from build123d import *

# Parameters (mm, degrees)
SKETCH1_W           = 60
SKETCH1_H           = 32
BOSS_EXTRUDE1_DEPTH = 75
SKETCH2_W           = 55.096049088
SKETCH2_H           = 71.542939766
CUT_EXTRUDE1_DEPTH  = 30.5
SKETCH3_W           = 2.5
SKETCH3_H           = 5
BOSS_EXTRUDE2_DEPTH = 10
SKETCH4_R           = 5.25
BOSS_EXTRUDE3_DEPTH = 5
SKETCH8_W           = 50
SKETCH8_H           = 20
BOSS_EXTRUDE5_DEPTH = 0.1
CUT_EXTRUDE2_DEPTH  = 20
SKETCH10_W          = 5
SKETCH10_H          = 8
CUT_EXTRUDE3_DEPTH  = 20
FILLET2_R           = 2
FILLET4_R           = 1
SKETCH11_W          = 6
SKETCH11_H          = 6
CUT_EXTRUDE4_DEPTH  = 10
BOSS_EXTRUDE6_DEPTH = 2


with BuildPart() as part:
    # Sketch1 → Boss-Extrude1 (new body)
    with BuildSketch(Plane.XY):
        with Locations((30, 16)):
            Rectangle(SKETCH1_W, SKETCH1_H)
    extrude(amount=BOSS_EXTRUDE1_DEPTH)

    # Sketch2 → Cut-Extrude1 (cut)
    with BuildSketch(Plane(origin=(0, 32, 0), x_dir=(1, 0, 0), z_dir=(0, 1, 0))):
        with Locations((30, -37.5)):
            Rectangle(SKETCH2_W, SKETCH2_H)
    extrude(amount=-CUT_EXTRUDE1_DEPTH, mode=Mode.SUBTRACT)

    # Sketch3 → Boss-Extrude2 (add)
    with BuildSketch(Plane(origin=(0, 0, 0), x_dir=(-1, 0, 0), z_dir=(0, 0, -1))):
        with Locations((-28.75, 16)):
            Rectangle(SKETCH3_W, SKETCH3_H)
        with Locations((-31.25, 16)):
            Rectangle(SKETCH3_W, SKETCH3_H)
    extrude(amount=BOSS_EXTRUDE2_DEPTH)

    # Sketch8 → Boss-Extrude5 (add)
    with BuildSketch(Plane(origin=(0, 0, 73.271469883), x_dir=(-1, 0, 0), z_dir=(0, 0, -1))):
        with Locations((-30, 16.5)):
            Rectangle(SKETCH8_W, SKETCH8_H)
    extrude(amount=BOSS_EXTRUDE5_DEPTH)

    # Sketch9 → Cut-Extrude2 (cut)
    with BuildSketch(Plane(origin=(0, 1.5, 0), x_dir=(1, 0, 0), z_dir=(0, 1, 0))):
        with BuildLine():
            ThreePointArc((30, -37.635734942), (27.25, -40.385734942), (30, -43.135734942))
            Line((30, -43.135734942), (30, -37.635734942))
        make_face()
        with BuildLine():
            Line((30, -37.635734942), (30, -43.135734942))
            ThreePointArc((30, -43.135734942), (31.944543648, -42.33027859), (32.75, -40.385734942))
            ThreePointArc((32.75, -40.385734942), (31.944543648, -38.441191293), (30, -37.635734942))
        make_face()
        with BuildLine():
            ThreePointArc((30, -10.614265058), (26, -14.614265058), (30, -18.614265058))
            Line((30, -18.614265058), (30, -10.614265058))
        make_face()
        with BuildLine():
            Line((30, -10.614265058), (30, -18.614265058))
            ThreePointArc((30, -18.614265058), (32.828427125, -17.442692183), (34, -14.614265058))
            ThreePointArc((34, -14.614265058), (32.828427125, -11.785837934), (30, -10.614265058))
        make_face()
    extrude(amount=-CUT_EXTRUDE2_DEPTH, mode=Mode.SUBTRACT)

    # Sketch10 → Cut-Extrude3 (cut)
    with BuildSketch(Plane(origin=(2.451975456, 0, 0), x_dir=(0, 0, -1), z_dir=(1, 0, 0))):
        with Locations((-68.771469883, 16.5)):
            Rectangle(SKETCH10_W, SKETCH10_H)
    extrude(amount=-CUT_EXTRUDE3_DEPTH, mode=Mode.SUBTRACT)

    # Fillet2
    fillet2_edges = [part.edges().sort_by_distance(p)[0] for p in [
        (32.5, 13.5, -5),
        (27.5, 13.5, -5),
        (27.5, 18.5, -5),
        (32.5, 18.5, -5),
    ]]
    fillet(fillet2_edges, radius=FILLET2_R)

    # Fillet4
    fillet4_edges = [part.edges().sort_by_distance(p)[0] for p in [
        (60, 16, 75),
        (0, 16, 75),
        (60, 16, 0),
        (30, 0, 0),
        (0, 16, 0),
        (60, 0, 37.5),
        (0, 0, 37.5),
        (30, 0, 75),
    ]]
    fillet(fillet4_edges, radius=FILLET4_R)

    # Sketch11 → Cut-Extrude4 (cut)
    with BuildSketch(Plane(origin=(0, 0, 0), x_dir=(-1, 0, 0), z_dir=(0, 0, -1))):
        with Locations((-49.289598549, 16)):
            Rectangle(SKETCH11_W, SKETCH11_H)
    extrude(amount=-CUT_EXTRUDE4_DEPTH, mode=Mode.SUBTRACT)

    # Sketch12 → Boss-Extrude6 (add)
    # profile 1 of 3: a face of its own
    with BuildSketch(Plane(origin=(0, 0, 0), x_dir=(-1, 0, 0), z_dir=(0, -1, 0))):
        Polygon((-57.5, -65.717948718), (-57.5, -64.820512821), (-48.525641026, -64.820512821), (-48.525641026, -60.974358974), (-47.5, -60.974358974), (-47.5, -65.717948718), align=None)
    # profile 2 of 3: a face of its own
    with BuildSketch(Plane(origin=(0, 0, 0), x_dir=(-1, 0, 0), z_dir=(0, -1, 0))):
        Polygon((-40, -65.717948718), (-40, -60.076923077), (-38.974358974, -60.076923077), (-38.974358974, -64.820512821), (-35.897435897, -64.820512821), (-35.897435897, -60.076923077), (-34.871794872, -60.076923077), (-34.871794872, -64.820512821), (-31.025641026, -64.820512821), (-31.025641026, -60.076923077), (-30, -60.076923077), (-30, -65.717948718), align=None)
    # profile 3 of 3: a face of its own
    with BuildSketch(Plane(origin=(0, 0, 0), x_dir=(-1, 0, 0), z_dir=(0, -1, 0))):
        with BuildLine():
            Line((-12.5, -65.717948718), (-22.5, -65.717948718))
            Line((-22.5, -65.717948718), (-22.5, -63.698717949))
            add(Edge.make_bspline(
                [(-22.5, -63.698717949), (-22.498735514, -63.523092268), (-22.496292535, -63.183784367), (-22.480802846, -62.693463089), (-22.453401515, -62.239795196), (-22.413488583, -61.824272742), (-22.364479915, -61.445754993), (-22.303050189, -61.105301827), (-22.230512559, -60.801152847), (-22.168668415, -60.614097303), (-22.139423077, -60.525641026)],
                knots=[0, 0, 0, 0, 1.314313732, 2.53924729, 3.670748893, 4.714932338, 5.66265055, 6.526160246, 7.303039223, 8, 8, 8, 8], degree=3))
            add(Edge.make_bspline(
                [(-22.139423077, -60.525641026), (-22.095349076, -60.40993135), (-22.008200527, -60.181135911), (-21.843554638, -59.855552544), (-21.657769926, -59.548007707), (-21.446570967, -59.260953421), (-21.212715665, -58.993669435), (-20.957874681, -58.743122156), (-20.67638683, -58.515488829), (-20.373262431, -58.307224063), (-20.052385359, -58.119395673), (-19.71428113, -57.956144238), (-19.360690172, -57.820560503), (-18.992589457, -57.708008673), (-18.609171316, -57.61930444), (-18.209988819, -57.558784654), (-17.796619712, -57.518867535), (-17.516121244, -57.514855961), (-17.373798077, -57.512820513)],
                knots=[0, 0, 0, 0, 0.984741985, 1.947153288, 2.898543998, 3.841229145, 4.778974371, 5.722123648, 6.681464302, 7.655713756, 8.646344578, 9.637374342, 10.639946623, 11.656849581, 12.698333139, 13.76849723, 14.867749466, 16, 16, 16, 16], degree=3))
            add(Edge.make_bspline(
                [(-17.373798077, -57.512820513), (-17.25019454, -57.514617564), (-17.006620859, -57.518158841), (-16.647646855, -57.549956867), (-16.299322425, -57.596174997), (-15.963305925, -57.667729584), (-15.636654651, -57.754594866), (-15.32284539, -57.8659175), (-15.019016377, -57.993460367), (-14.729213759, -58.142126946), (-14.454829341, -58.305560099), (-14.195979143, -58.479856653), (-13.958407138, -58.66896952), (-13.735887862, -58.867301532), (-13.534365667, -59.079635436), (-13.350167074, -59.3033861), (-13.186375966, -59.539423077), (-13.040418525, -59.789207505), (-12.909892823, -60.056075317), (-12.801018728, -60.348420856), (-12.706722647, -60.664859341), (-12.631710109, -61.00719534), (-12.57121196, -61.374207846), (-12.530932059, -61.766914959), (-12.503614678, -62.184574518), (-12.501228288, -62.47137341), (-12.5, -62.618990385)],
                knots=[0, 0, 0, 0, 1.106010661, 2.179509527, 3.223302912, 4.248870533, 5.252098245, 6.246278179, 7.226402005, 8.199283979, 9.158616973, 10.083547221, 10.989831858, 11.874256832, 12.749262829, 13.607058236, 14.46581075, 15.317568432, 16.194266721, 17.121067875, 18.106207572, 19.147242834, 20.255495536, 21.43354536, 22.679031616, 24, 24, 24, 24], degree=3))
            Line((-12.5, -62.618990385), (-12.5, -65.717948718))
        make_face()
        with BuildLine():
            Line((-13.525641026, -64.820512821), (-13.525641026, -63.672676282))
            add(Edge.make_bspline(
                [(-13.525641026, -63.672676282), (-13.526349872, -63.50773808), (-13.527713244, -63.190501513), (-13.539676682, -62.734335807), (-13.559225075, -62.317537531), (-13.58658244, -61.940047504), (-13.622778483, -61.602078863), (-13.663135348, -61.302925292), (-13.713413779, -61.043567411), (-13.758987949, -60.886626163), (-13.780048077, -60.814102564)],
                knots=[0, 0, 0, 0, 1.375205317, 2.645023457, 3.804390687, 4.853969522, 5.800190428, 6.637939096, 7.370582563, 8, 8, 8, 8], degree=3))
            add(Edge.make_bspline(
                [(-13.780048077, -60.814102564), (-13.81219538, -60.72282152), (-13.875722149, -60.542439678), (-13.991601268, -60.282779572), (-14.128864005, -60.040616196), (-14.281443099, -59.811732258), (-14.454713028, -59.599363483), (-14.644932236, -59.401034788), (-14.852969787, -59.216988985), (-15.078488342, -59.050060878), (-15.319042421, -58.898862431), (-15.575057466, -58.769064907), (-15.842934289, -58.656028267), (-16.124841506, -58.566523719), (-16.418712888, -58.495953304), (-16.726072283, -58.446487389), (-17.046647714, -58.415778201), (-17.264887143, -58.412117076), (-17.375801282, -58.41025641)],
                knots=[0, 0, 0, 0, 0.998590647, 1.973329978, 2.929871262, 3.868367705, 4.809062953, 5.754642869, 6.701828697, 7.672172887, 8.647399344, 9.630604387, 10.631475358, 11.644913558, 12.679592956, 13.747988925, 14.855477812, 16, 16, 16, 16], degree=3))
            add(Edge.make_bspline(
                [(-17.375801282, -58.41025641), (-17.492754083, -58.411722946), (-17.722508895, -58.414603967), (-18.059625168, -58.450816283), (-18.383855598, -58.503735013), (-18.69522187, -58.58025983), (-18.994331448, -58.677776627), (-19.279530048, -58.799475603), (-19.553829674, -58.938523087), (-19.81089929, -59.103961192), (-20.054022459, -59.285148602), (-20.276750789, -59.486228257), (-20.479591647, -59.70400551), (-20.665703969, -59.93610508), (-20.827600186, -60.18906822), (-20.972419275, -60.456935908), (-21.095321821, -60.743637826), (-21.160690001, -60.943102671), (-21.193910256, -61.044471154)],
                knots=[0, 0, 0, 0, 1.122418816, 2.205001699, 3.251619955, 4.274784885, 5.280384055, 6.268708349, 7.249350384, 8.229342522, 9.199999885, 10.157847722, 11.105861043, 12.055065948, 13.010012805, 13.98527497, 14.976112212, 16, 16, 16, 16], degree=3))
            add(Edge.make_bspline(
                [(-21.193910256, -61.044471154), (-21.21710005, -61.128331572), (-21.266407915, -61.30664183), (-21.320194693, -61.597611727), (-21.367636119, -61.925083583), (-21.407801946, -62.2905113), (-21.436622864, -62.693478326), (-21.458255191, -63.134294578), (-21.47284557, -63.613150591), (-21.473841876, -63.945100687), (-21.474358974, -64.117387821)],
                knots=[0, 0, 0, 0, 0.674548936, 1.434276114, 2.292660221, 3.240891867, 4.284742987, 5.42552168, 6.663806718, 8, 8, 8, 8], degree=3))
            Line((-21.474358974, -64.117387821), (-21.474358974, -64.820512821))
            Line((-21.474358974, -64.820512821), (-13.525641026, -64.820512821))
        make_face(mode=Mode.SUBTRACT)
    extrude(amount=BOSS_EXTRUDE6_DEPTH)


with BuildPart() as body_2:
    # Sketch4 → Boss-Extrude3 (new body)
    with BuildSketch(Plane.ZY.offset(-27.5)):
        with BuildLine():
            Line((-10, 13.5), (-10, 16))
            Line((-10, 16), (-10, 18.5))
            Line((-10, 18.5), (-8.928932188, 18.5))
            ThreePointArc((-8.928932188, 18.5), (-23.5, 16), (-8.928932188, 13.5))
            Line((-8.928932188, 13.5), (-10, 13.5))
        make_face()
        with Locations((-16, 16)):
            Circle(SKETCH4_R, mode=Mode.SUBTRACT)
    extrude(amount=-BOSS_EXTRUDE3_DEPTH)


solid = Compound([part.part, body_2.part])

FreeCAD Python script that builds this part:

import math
import FreeCAD as App
import Part
import Sketcher
from FreeCAD import Vector


def edges_at(feature, points):
    """Names of the edges that pass closest to the given points."""
    edges = feature.Shape.Edges
    near = lambda p: min(range(len(edges)), key=lambda i: edges[i].distToShape(Part.Vertex(*p))[0])
    return sorted({f"Edge{near(p) + 1}" for p in points})


def add_polygon(sketch, points):
    """Adds a closed chain of lines whose ends are joined by coincident constraints."""
    first, n = sketch.GeometryCount, len(points)
    for a, b in zip(points, points[1:] + points[:1]):
        sketch.addGeometry(Part.LineSegment(App.Vector(*a, 0), App.Vector(*b, 0)), False)
    for i in range(n):
        sketch.addConstraint(Sketcher.Constraint("Coincident", first + i, 2, first + (i + 1) % n, 1))

doc = App.newDocument("Part")
body = doc.addObject("PartDesign::Body", "Body")

sketch1 = body.newObject("Sketcher::SketchObject", "Sketch")
sketch1.AttachmentSupport = (doc.getObject("XY_Plane"), [""])
sketch1.MapMode = "FlatFace"
add_polygon(sketch1, [(0, 32), (0, 0), (60, 0), (60, 32)])
sketch1.addConstraint([
    Sketcher.Constraint("Vertical", 0),
    Sketcher.Constraint("Horizontal", 1),
    Sketcher.Constraint("Vertical", 2),
    Sketcher.Constraint("Horizontal", 3),
    Sketcher.Constraint("Coincident", 0, 2, -1, 1),
    Sketcher.Constraint("DistanceX", 1, 1, 1, 2, 60.0),
    Sketcher.Constraint("DistanceY", 0, 2, 0, 1, 32.0),
])
pad1 = body.newObject("PartDesign::Pad", "Pad")
pad1.Profile = sketch1
pad1.Length = 75

sketch2 = body.newObject("Sketcher::SketchObject", "Sketch001")
sketch2.AttachmentSupport = (doc.getObject("XZ_Plane"), [""])
sketch2.MapMode = "FlatFace"
sketch2.AttachmentOffset = App.Placement(Vector(0, 0, -32), App.Rotation())
add_polygon(sketch2, [(2, 2), (2, 73), (58, 73), (58, 2)])
sketch2.addConstraint([
    Sketcher.Constraint("Vertical", 0),
    Sketcher.Constraint("Horizontal", 1),
    Sketcher.Constraint("Vertical", 2),
    Sketcher.Constraint("Horizontal", 3),
    Sketcher.Constraint("DistanceX", 1, 1, 1, 2, 55.096049),
    Sketcher.Constraint("DistanceY", 0, 1, 0, 2, 71.54294),
    Sketcher.Constraint("DistanceY", -1, 1, 0, 2, 73.27147),
    Sketcher.Constraint("DistanceX", -1, 1, 0, 2, 2.451975),
])
pocket1 = body.newObject("PartDesign::Pocket", "Pocket")
pocket1.Profile = sketch2
pocket1.Length = 30.5
pocket1.Reversed = True

sketch3 = body.newObject("Sketcher::SketchObject", "Sketch002")
sketch3.AttachmentSupport = (doc.getObject("XY_Plane"), [""])
sketch3.MapMode = "FlatFace"
add_polygon(sketch3, [(28, 14), (28, 18), (32, 18), (32, 14)])
sketch3.addConstraint([
    Sketcher.Constraint("Vertical", 0),
    Sketcher.Constraint("Horizontal", 1),
    Sketcher.Constraint("Vertical", 2),
    Sketcher.Constraint("Horizontal", 3),
    Sketcher.Constraint("Equal", 3, 0),
    Sketcher.Constraint("DistanceX", 1, 1, 1, 2, 5.0),
    Sketcher.Constraint("DistanceX", -1, 1, 0, 2, 27.5),
    Sketcher.Constraint("DistanceY", -1, 1, 0, 2, 18.5),
])
pad2 = body.newObject("PartDesign::Pad", "Pad001")
pad2.Profile = sketch3
pad2.Length = 10
pad2.Reversed = True

sketch4 = body.newObject("Sketcher::SketchObject", "Sketch003")
sketch4.AttachmentSupport = (doc.getObject("XY_Plane"), [""])
sketch4.MapMode = "FlatFace"
sketch4.AttachmentOffset = App.Placement(Vector(0, 0, 73.27147), App.Rotation())
add_polygon(sketch4, [(55, 26), (55, 6), (5, 6), (5, 26)])
sketch4.addConstraint([
    Sketcher.Constraint("Vertical", 0),
    Sketcher.Constraint("Horizontal", 1),
    Sketcher.Constraint("Vertical", 2),
    Sketcher.Constraint("Horizontal", 3),
    Sketcher.Constraint("DistanceX", 1, 2, 1, 1, 50.0),
    Sketcher.Constraint("DistanceY", 0, 2, 0, 1, 20.0),
    Sketcher.Constraint("DistanceX", -1, 1, 0, 2, 55.0),
    Sketcher.Constraint("DistanceY", -1, 1, 0, 2, 6.5),
])
pad3 = body.newObject("PartDesign::Pad", "Pad002")
pad3.Profile = sketch4
pad3.Length = 0.1
pad3.Reversed = True

sketch5 = body.newObject("Sketcher::SketchObject", "Sketch004")
sketch5.AttachmentSupport = (doc.getObject("XZ_Plane"), [""])
sketch5.MapMode = "FlatFace"
sketch5.AttachmentOffset = App.Placement(Vector(0, 0, -1.5), App.Rotation())
sketch5.addGeometry([
    Part.ArcOfCircle(Part.Circle(Vector(30, 40.4, 0), Vector(0, 0, 1), 2.8), math.radians(90), math.radians(270)),
    Part.ArcOfCircle(Part.Circle(Vector(30, 40.4, 0), Vector(0, 0, 1), 2.8), math.radians(0), math.radians(90)),
    Part.ArcOfCircle(Part.Circle(Vector(30, 40.4, 0), Vector(0, 0, 1), 2.7), math.radians(-90), math.radians(0)),
    Part.ArcOfCircle(Part.Circle(Vector(30, 14.6, 0), Vector(0, 0, 1), 4), math.radians(90), math.radians(270)),
    Part.ArcOfCircle(Part.Circle(Vector(30, 14.6, 0), Vector(0, 0, 1), 4), math.radians(0), math.radians(90)),
    Part.ArcOfCircle(Part.Circle(Vector(30, 14.6, 0), Vector(0, 0, 1), 4), math.radians(-90), math.radians(0)),
], False)
sketch5.addConstraint([
    Sketcher.Constraint("Tangent", 0, 1, 1, 2),
    Sketcher.Constraint("Tangent", 1, 1, 2, 2),
    Sketcher.Constraint("Tangent", 2, 1, 0, 2),
    Sketcher.Constraint("Tangent", 3, 1, 4, 2),
    Sketcher.Constraint("Tangent", 4, 1, 5, 2),
    Sketcher.Constraint("Tangent", 5, 1, 3, 2),
    Sketcher.Constraint("Horizontal", 2, 3, 1, 1),
    Sketcher.Constraint("Horizontal", 5, 3, 4, 1),
    Sketcher.Constraint("Vertical", 2, 3, 3, 3),
    Sketcher.Constraint("Vertical", 5, 3, 0, 1),
    Sketcher.Constraint("Vertical", 0, 1, 2, 1),
    Sketcher.Constraint("Vertical", 2, 1, 3, 1),
    Sketcher.Constraint("Vertical", 3, 1, 5, 1),
    Sketcher.Constraint("Radius", 3, 4.0),
    Sketcher.Constraint("Radius", 0, 2.75),
    Sketcher.Constraint("DistanceX", -1, 1, 0, 3, 30.0),
    Sketcher.Constraint("DistanceY", 3, 3, 1, 3, 25.77147),
    Sketcher.Constraint("DistanceY", -1, 1, 0, 3, 40.385735),
])
pocket2 = body.newObject("PartDesign::Pocket", "Pocket001")
pocket2.Profile = sketch5
pocket2.Length = 20
pocket2.Reversed = True

sketch6 = body.newObject("Sketcher::SketchObject", "Sketch005")
sketch6.AttachmentSupport = (doc.getObject("YZ_Plane"), [""])
sketch6.MapMode = "FlatFace"
sketch6.AttachmentOffset = App.Placement(Vector(0, 0, 2.451975), App.Rotation())
add_polygon(sketch6, [(20, 71), (12, 71), (12, 66), (20, 66)])
sketch6.addConstraint([
    Sketcher.Constraint("Horizontal", 0),
    Sketcher.Constraint("Vertical", 1),
    Sketcher.Constraint("Horizontal", 2),
    Sketcher.Constraint("Vertical", 3),
    Sketcher.Constraint("DistanceX", 0, 2, 0, 1, 8.0),
    Sketcher.Constraint("DistanceY", 1, 2, 1, 1, 5.0),
    Sketcher.Constraint("DistanceX", -1, 1, 0, 2, 12.5),
    Sketcher.Constraint("DistanceY", -1, 1, 0, 2, 71.27147),
])
pocket3 = body.newObject("PartDesign::Pocket", "Pocket002")
pocket3.Profile = sketch6
pocket3.Length = 20
doc.recompute()

fillet = body.newObject("PartDesign::Fillet", "Fillet")
fillet.Base = (pocket3, edges_at(pocket3, [
    (32.5, 13.5, -5),
    (27.5, 13.5, -5),
    (27.5, 18.5, -5),
    (32.5, 18.5, -5),
]))
fillet.Radius = 2
doc.recompute()

fillet2 = body.newObject("PartDesign::Fillet", "Fillet001")
fillet2.Base = (fillet, edges_at(fillet, [
    (60, 16, 75),
    (0, 16, 75),
    (60, 16, 0),
    (30, 0, 0),
    (0, 16, 0),
    (60, 0, 37.5),
    (0, 0, 37.5),
    (30, 0, 75),
]))
fillet2.Radius = 1

sketch7 = body.newObject("Sketcher::SketchObject", "Sketch006")
sketch7.AttachmentSupport = (doc.getObject("XY_Plane"), [""])
sketch7.MapMode = "FlatFace"
add_polygon(sketch7, [(52, 19), (52, 13), (46, 13), (46, 19)])
sketch7.addConstraint([
    Sketcher.Constraint("Vertical", 0),
    Sketcher.Constraint("Horizontal", 1),
    Sketcher.Constraint("Vertical", 2),
    Sketcher.Constraint("Horizontal", 3),
    Sketcher.Constraint("Equal", 3, 0),
    Sketcher.Constraint("DistanceX", 1, 2, 1, 1, 6.0),
    Sketcher.Constraint("DistanceY", -1, 1, 0, 2, 13.0),
    Sketcher.Constraint("DistanceX", -1, 1, 0, 2, 52.289599),
])
pocket4 = body.newObject("PartDesign::Pocket", "Pocket003")
pocket4.Profile = sketch7
pocket4.Length = 10
pocket4.Reversed = True

sketch8 = body.newObject("Sketcher::SketchObject", "Sketch007")
sketch8.AttachmentSupport = (doc.getObject("XZ_Plane"), [""])
sketch8.MapMode = "FlatFace"
add_polygon(sketch8, [(57.5, 64.820513), (57.5, 65.717949), (47.5, 65.717949), (47.5, 60.974359), (48.525641, 60.974359), (48.525641, 64.820513)])
add_polygon(sketch8, [(40, 60.076923), (40, 65.717949), (30, 65.717949), (30, 60.076923), (31.025641, 60.076923), (31.025641, 64.820513), (34.871795, 64.820513), (34.871795, 60.076923), (35.897436, 60.076923), (35.897436, 64.820513), (38.974359, 64.820513), (38.974359, 60.076923)])
sketch8.addGeometry(Part.LineSegment(Vector(22.5, 65.717949, 0), Vector(12.5, 65.717949, 0)), False)
sketch8.addGeometry(Part.LineSegment(Vector(12.5, 65.717949, 0), Vector(12.5, 62.61899, 0)), False)
sketch8.addGeometry(Part.BSplineCurve([Vector(17.373798, 57.512821, 0), Vector(17.250195, 57.514618, 0), Vector(17.006621, 57.518159, 0), Vector(16.647647, 57.549957, 0), Vector(16.299322, 57.596175, 0), Vector(15.963306, 57.66773, 0), Vector(15.636655, 57.754595, 0), Vector(15.322845, 57.865918, 0), Vector(15.019016, 57.99346, 0), Vector(14.729214, 58.142127, 0), Vector(14.454829, 58.30556, 0), Vector(14.195979, 58.479857, 0), Vector(13.958407, 58.66897, 0), Vector(13.735888, 58.867302, 0), Vector(13.534366, 59.079635, 0), Vector(13.350167, 59.303386, 0), Vector(13.186376, 59.539423, 0), Vector(13.040419, 59.789208, 0), Vector(12.909893, 60.056075, 0), Vector(12.801019, 60.348421, 0), Vector(12.706723, 60.664859, 0), Vector(12.63171, 61.007195, 0), Vector(12.571212, 61.374208, 0), Vector(12.530932, 61.766915, 0), Vector(12.503615, 62.184575, 0), Vector(12.501228, 62.471373, 0), Vector(12.5, 62.61899, 0)], [4, 1, 1, 1, 1, 1, 1, 1, 1, 1, 1, 1, 1, 1, 1, 1, 1, 1, 1, 1, 1, 1, 1, 1, 4], [0, 1.106010661, 2.179509527, 3.223302912, 4.248870533, 5.252098245, 6.246278179, 7.226402005, 8.199283979, 9.158616973, 10.083547221, 10.989831858, 11.874256832, 12.749262829, 13.607058236, 14.46581075, 15.317568432, 16.194266721, 17.121067875, 18.106207572, 19.147242834, 20.255495536, 21.43354536, 22.679031616, 24], False, 3, [1, 1, 1, 1, 1, 1, 1, 1, 1, 1, 1, 1, 1, 1, 1, 1, 1, 1, 1, 1, 1, 1, 1, 1, 1, 1, 1], False), False)
sketch8.addGeometry(Part.BSplineCurve([Vector(22.139423, 60.525641, 0), Vector(22.095349, 60.409931, 0), Vector(22.008201, 60.181136, 0), Vector(21.843555, 59.855553, 0), Vector(21.65777, 59.548008, 0), Vector(21.446571, 59.260953, 0), Vector(21.212716, 58.993669, 0), Vector(20.957875, 58.743122, 0), Vector(20.676387, 58.515489, 0), Vector(20.373262, 58.307224, 0), Vector(20.052385, 58.119396, 0), Vector(19.714281, 57.956144, 0), Vector(19.36069, 57.820561, 0), Vector(18.992589, 57.708009, 0), Vector(18.609171, 57.619304, 0), Vector(18.209989, 57.558785, 0), Vector(17.79662, 57.518868, 0), Vector(17.516121, 57.514856, 0), Vector(17.373798, 57.512821, 0)], [4, 1, 1, 1, 1, 1, 1, 1, 1, 1, 1, 1, 1, 1, 1, 1, 4], [0, 0.984741985, 1.947153288, 2.898543998, 3.841229145, 4.778974371, 5.722123648, 6.681464302, 7.655713756, 8.646344578, 9.637374342, 10.639946623, 11.656849581, 12.698333139, 13.76849723, 14.867749466, 16], False, 3, [1, 1, 1, 1, 1, 1, 1, 1, 1, 1, 1, 1, 1, 1, 1, 1, 1, 1, 1], False), False)
sketch8.addGeometry(Part.BSplineCurve([Vector(22.5, 63.698718, 0), Vector(22.498736, 63.523092, 0), Vector(22.496293, 63.183784, 0), Vector(22.480803, 62.693463, 0), Vector(22.453402, 62.239795, 0), Vector(22.413489, 61.824273, 0), Vector(22.36448, 61.445755, 0), Vector(22.30305, 61.105302, 0), Vector(22.230513, 60.801153, 0), Vector(22.168668, 60.614097, 0), Vector(22.139423, 60.525641, 0)], [4, 1, 1, 1, 1, 1, 1, 1, 4], [0, 1.314313732, 2.53924729, 3.670748893, 4.714932338, 5.66265055, 6.526160246, 7.303039223, 8], False, 3, [1, 1, 1, 1, 1, 1, 1, 1, 1, 1, 1], False), False)
sketch8.addGeometry(Part.LineSegment(Vector(22.5, 63.698718, 0), Vector(22.5, 65.717949, 0)), False)
sketch8.addGeometry(Part.LineSegment(Vector(13.525641, 64.820513, 0), Vector(21.474359, 64.820513, 0)), False)
sketch8.addGeometry(Part.LineSegment(Vector(21.474359, 64.820513, 0), Vector(21.474359, 64.117388, 0)), False)
sketch8.addGeometry(Part.BSplineCurve([Vector(21.19391, 61.044471, 0), Vector(21.2171, 61.128332, 0), Vector(21.266408, 61.306642, 0), Vector(21.320195, 61.597612, 0), Vector(21.367636, 61.925084, 0), Vector(21.407802, 62.290511, 0), Vector(21.436623, 62.693478, 0), Vector(21.458255, 63.134295, 0), Vector(21.472846, 63.613151, 0), Vector(21.473842, 63.945101, 0), Vector(21.474359, 64.117388, 0)], [4, 1, 1, 1, 1, 1, 1, 1, 4], [0, 0.674548936, 1.434276114, 2.292660221, 3.240891867, 4.284742987, 5.42552168, 6.663806718, 8], False, 3, [1, 1, 1, 1, 1, 1, 1, 1, 1, 1, 1], False), False)
sketch8.addGeometry(Part.BSplineCurve([Vector(17.375801, 58.410256, 0), Vector(17.492754, 58.411723, 0), Vector(17.722509, 58.414604, 0), Vector(18.059625, 58.450816, 0), Vector(18.383856, 58.503735, 0), Vector(18.695222, 58.58026, 0), Vector(18.994331, 58.677777, 0), Vector(19.27953, 58.799476, 0), Vector(19.55383, 58.938523, 0), Vector(19.810899, 59.103961, 0), Vector(20.054022, 59.285149, 0), Vector(20.276751, 59.486228, 0), Vector(20.479592, 59.704006, 0), Vector(20.665704, 59.936105, 0), Vector(20.8276, 60.189068, 0), Vector(20.972419, 60.456936, 0), Vector(21.095322, 60.743638, 0), Vector(21.16069, 60.943103, 0), Vector(21.19391, 61.044471, 0)], [4, 1, 1, 1, 1, 1, 1, 1, 1, 1, 1, 1, 1, 1, 1, 1, 4], [0, 1.122418816, 2.205001699, 3.251619955, 4.274784885, 5.280384055, 6.268708349, 7.249350384, 8.229342522, 9.199999885, 10.157847722, 11.105861043, 12.055065948, 13.010012805, 13.98527497, 14.976112212, 16], False, 3, [1, 1, 1, 1, 1, 1, 1, 1, 1, 1, 1, 1, 1, 1, 1, 1, 1, 1, 1], False), False)
sketch8.addGeometry(Part.BSplineCurve([Vector(13.780048, 60.814103, 0), Vector(13.812195, 60.722822, 0), Vector(13.875722, 60.54244, 0), Vector(13.991601, 60.28278, 0), Vector(14.128864, 60.040616, 0), Vector(14.281443, 59.811732, 0), Vector(14.454713, 59.599363, 0), Vector(14.644932, 59.401035, 0), Vector(14.85297, 59.216989, 0), Vector(15.078488, 59.050061, 0), Vector(15.319042, 58.898862, 0), Vector(15.575057, 58.769065, 0), Vector(15.842934, 58.656028, 0), Vector(16.124842, 58.566524, 0), Vector(16.418713, 58.495953, 0), Vector(16.726072, 58.446487, 0), Vector(17.046648, 58.415778, 0), Vector(17.264887, 58.412117, 0), Vector(17.375801, 58.410256, 0)], [4, 1, 1, 1, 1, 1, 1, 1, 1, 1, 1, 1, 1, 1, 1, 1, 4], [0, 0.998590647, 1.973329978, 2.929871262, 3.868367705, 4.809062953, 5.754642869, 6.701828697, 7.672172887, 8.647399344, 9.630604387, 10.631475358, 11.644913558, 12.679592956, 13.747988925, 14.855477812, 16], False, 3, [1, 1, 1, 1, 1, 1, 1, 1, 1, 1, 1, 1, 1, 1, 1, 1, 1, 1, 1], False), False)
sketch8.addGeometry(Part.BSplineCurve([Vector(13.525641, 63.672676, 0), Vector(13.52635, 63.507738, 0), Vector(13.527713, 63.190502, 0), Vector(13.539677, 62.734336, 0), Vector(13.559225, 62.317538, 0), Vector(13.586582, 61.940048, 0), Vector(13.622778, 61.602079, 0), Vector(13.663135, 61.302925, 0), Vector(13.713414, 61.043567, 0), Vector(13.758988, 60.886626, 0), Vector(13.780048, 60.814103, 0)], [4, 1, 1, 1, 1, 1, 1, 1, 4], [0, 1.375205317, 2.645023457, 3.804390687, 4.853969522, 5.800190428, 6.637939096, 7.370582563, 8], False, 3, [1, 1, 1, 1, 1, 1, 1, 1, 1, 1, 1], False), False)
sketch8.addGeometry(Part.LineSegment(Vector(13.525641, 63.672676, 0), Vector(13.525641, 64.820513, 0)), False)
sketch8.addConstraint([
    Sketcher.Constraint("Block", 20),
    Sketcher.Constraint("Block", 21),
    Sketcher.Constraint("Block", 22),
    Sketcher.Constraint("Block", 26),
    Sketcher.Constraint("Block", 27),
    Sketcher.Constraint("Block", 28),
    Sketcher.Constraint("Block", 29),
    Sketcher.Constraint("Coincident", 18, 2, 19, 1),
    Sketcher.Constraint("Coincident", 19, 2, 20, 2),
    Sketcher.Constraint("Coincident", 22, 1, 23, 1),
    Sketcher.Constraint("Coincident", 23, 2, 18, 1),
    Sketcher.Constraint("Coincident", 24, 2, 25, 1),
    Sketcher.Constraint("Coincident", 25, 2, 26, 2),
    Sketcher.Constraint("Coincident", 29, 1, 30, 1),
    Sketcher.Constraint("Coincident", 30, 2, 24, 1),
    Sketcher.Constraint("Vertical", 0),
    Sketcher.Constraint("Horizontal", 1),
    Sketcher.Constraint("Vertical", 2),
    Sketcher.Constraint("Horizontal", 3),
    Sketcher.Constraint("Vertical", 4),
    Sketcher.Constraint("Horizontal", 5),
    Sketcher.Constraint("Vertical", 6),
    Sketcher.Constraint("Horizontal", 7),
    Sketcher.Constraint("Vertical", 8),
    Sketcher.Constraint("Horizontal", 9),
    Sketcher.Constraint("Vertical", 10),
    Sketcher.Constraint("Horizontal", 11),
    Sketcher.Constraint("Vertical", 12),
    Sketcher.Constraint("Horizontal", 13),
    Sketcher.Constraint("Vertical", 14),
    Sketcher.Constraint("Horizontal", 15),
    Sketcher.Constraint("Vertical", 16),
    Sketcher.Constraint("Horizontal", 17),
    Sketcher.Constraint("Horizontal", 18),
    Sketcher.Constraint("Vertical", 19),
    Sketcher.Constraint("Vertical", 23),
    Sketcher.Constraint("Horizontal", 24),
    Sketcher.Constraint("Vertical", 25),
    Sketcher.Constraint("Vertical", 30),
    Sketcher.Constraint("DistanceX", 1, 2, 1, 1, 10.0),
    Sketcher.Constraint("DistanceX", 7, 2, 7, 1, 10.0),
    Sketcher.Constraint("DistanceX", -1, 1, 6, 2, 40.0),
    Sketcher.Constraint("DistanceX", -1, 1, 0, 2, 57.5),
    Sketcher.Constraint("DistanceX", 3, 1, 3, 2, 1.025641),
    Sketcher.Constraint("DistanceX", 9, 1, 9, 2, 1.025641),
    Sketcher.Constraint("DistanceX", 13, 1, 13, 2, 1.025641),
    Sketcher.Constraint("DistanceX", 17, 1, 17, 2, 1.025641),
    Sketcher.Constraint("DistanceY", 2, 2, 2, 1, 4.74359),
    Sketcher.Constraint("DistanceY", 10, 1, 10, 2, 4.74359),
    Sketcher.Constraint("DistanceY", 12, 2, 12, 1, 4.74359),
    Sketcher.Constraint("DistanceY", 14, 1, 14, 2, 4.74359),
    Sketcher.Constraint("DistanceY", 16, 2, 16, 1, 4.74359),
    Sketcher.Constraint("DistanceY", 19, 2, 19, 1, 3.098958),
    Sketcher.Constraint("DistanceX", 11, 1, 11, 2, 3.846154),
    Sketcher.Constraint("DistanceY", 0, 1, 0, 2, 0.897436),
    Sketcher.Constraint("DistanceY", 6, 1, 6, 2, 5.641026),
    Sketcher.Constraint("DistanceY", 25, 2, 25, 1, 0.703125),
    Sketcher.Constraint("DistanceY", -1, 1, 0, 2, 65.717949),
    Sketcher.Constraint("DistanceY", -1, 1, 6, 2, 65.717949),
])
pad4 = body.newObject("PartDesign::Pad", "Pad003")
pad4.Profile = sketch8
pad4.Length = 2
body2 = doc.addObject("PartDesign::Body", "Body001")

sketch9 = body2.newObject("Sketcher::SketchObject", "Sketch008")
sketch9.AttachmentSupport = (doc.getObject("YZ_Plane001"), [""])
sketch9.MapMode = "FlatFace"
sketch9.AttachmentOffset = App.Placement(Vector(0, 0, 27.5), App.Rotation())
sketch9.addGeometry([
    Part.LineSegment(Vector(13.5, -10, 0), Vector(18.5, -10, 0)),
    Part.LineSegment(Vector(18.5, -10, 0), Vector(18.5, -8.9, 0)),
    Part.ArcOfCircle(Part.Circle(Vector(16, -16, 0), Vector(0, 0, 1), 7.5), math.radians(109), math.radians(431)),
    Part.LineSegment(Vector(13.5, -8.9, 0), Vector(13.5, -10, 0)),
    Part.Circle(Vector(16, -16, 0), Vector(0, 0, 1), 5.2),
], False)
sketch9.addConstraint([
    Sketcher.Constraint("Coincident", 0, 2, 1, 1),
    Sketcher.Constraint("Coincident", 1, 2, 2, 2),
    Sketcher.Constraint("Coincident", 2, 1, 3, 1),
    Sketcher.Constraint("Coincident", 3, 2, 0, 1),
    Sketcher.Constraint("Horizontal", 0),
    Sketcher.Constraint("Vertical", 1),
    Sketcher.Constraint("Vertical", 3),
    Sketcher.Constraint("Coincident", 4, 3, 2, 3),
    Sketcher.Constraint("Horizontal", 1, 2, 2, 1),
    Sketcher.Constraint("Diameter", 4, 10.5),
    Sketcher.Constraint("Radius", 2, 7.5),
    Sketcher.Constraint("DistanceX", 0, 1, 0, 2, 5.0),
    Sketcher.Constraint("DistanceX", -1, 1, 2, 3, 16.0),
    Sketcher.Constraint("DistanceY", 2, 3, -1, 1, 16.0),
    Sketcher.Constraint("DistanceY", 0, 2, -1, 1, 10.0),
])
pad5 = body2.newObject("PartDesign::Pad", "Pad004")
pad5.Profile = sketch9
pad5.Length = 5

doc.recompute()
